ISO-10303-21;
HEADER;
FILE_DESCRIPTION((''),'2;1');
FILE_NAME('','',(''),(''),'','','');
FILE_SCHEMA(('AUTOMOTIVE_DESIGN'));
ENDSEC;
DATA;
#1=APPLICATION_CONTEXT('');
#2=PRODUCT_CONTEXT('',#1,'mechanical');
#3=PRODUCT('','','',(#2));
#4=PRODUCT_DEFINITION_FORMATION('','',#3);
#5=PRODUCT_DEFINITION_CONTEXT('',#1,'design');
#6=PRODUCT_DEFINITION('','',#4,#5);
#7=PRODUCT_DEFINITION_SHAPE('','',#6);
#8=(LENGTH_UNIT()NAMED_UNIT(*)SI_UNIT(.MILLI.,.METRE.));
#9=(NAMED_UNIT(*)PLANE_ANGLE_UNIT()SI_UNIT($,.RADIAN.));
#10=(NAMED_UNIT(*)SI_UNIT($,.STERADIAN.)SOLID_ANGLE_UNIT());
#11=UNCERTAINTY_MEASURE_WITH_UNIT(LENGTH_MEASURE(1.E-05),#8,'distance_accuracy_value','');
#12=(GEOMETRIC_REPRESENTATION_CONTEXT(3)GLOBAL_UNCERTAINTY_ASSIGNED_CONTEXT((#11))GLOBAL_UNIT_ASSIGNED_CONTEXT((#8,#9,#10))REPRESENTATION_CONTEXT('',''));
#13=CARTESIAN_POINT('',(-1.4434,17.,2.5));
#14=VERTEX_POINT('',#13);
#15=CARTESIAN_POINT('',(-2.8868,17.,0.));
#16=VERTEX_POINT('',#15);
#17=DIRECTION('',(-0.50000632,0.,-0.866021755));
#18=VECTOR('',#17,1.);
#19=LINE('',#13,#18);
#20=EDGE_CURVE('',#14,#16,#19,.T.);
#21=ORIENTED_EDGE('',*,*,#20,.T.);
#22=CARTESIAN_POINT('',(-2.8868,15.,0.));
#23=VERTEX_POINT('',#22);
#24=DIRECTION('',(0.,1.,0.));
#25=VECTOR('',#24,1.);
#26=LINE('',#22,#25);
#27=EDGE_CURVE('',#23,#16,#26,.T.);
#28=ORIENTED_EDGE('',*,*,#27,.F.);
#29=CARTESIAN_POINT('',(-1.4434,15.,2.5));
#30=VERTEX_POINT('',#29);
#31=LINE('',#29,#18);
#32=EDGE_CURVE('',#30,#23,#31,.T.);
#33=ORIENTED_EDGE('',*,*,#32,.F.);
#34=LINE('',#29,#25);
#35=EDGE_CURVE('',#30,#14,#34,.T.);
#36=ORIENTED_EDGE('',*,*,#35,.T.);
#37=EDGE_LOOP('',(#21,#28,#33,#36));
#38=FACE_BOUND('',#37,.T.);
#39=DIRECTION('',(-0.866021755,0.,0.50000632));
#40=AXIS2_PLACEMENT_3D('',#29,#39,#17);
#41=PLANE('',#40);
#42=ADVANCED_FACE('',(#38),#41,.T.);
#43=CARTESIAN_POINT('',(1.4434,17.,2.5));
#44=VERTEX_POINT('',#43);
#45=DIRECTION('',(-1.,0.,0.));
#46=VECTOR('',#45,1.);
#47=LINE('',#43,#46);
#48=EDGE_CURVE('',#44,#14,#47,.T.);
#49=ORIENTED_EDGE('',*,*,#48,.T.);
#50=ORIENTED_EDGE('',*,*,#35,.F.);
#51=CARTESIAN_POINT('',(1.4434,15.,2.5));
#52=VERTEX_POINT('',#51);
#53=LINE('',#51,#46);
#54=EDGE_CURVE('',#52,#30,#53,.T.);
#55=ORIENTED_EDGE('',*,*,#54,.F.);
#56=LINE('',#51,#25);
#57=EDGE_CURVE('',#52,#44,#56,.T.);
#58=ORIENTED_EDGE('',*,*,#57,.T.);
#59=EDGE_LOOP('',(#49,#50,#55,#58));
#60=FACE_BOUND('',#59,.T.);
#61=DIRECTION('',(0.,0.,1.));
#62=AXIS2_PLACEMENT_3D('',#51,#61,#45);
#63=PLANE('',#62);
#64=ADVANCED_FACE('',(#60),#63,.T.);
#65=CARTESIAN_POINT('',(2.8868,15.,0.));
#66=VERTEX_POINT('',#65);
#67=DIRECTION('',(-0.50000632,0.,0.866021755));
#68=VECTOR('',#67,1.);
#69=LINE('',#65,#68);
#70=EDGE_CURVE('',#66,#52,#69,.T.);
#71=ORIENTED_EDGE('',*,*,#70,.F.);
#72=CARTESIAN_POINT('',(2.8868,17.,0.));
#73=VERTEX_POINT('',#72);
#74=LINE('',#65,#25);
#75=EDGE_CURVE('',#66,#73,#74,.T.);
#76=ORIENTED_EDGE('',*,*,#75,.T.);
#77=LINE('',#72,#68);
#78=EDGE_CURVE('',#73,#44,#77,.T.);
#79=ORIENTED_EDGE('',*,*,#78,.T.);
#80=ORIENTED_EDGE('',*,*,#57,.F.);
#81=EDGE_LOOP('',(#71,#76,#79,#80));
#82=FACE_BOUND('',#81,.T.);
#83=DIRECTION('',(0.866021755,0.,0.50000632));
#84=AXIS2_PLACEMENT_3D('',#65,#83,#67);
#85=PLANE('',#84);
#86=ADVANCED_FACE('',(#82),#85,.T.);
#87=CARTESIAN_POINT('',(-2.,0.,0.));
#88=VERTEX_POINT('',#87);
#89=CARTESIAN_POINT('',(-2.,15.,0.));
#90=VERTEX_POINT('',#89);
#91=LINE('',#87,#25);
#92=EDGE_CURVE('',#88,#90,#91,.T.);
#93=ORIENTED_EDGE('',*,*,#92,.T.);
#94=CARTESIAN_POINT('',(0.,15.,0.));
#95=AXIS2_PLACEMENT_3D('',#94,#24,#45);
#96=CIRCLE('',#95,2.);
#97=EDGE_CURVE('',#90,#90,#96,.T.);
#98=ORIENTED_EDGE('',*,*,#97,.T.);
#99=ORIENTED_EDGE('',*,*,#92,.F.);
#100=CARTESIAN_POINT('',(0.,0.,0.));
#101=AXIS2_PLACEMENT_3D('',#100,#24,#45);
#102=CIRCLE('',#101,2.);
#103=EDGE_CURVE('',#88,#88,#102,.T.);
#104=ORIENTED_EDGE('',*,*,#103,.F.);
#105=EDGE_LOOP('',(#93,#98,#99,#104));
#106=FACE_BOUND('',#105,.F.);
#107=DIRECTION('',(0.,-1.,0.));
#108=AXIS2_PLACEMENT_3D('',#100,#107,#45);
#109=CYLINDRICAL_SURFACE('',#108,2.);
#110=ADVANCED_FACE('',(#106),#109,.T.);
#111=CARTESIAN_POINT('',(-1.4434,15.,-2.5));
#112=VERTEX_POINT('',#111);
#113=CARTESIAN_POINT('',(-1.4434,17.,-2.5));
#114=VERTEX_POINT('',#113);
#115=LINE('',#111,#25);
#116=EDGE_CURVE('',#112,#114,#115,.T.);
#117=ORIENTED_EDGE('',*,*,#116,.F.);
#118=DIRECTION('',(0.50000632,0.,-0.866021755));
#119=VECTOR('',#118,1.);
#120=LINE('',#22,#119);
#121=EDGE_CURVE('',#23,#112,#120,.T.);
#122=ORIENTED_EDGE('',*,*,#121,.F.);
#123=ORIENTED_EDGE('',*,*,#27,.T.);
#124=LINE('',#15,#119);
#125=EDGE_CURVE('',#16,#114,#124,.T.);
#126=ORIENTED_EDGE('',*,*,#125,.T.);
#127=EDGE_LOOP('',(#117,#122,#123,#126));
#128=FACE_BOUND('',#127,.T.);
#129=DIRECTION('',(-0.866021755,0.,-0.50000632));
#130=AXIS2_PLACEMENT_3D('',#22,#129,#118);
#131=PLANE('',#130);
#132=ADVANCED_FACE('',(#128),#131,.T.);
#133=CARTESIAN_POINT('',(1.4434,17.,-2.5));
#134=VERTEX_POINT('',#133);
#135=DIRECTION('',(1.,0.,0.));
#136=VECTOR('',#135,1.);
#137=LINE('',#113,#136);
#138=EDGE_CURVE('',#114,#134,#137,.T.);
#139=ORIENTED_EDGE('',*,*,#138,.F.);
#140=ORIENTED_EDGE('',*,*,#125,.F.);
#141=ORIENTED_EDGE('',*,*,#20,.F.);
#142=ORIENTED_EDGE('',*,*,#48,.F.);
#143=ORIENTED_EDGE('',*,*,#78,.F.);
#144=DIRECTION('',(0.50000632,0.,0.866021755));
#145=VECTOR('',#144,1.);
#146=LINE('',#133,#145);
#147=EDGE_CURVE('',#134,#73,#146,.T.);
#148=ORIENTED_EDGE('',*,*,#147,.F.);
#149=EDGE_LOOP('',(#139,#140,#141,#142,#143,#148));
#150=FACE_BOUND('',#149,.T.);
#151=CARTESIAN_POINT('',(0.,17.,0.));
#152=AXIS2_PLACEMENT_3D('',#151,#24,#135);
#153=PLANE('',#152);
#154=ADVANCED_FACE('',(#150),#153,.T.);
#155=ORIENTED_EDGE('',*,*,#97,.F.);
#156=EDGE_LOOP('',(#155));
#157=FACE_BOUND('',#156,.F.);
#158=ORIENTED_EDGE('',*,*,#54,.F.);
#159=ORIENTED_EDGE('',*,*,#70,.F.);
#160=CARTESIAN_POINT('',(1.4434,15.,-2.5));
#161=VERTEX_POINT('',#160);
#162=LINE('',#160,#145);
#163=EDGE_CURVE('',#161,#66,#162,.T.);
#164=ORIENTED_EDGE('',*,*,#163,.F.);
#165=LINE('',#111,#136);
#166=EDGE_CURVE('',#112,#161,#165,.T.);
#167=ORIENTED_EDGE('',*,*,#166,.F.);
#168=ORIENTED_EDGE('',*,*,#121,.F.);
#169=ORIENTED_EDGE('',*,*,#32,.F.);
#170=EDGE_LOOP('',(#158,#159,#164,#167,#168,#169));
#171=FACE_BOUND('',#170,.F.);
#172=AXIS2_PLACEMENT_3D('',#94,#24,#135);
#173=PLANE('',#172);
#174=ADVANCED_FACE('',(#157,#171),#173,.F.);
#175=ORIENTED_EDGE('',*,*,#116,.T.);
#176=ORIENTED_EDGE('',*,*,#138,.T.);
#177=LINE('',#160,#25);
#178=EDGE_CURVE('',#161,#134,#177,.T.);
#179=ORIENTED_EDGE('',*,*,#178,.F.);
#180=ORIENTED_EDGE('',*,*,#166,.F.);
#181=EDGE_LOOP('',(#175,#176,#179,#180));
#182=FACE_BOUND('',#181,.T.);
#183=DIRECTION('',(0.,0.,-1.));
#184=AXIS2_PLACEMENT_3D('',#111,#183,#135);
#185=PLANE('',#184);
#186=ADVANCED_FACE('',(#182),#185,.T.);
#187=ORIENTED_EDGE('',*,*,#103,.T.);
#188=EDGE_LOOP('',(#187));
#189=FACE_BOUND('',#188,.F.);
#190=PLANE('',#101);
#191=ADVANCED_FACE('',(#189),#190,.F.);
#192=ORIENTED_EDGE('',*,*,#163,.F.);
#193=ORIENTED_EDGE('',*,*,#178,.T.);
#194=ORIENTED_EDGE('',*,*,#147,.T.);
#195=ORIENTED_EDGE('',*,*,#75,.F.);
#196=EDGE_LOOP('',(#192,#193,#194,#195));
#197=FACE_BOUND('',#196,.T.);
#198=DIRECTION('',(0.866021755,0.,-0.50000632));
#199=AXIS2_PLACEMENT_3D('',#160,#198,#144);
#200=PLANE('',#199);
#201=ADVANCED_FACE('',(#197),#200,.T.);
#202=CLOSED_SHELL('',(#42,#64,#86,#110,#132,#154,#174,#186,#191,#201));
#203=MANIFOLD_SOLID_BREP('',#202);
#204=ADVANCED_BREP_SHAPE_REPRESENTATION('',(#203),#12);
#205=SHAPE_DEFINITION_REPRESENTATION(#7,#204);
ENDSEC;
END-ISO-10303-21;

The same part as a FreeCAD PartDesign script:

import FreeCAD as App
import Part
import Sketcher
from FreeCAD import Vector
Q = App.Units.Quantity

doc = App.newDocument("Part")
params = doc.addObject("Spreadsheet::Sheet", "Params")
for row, (alias, value) in enumerate([
    ("sketch1_diameter", "4 mm"),
    ("pad1_length", "15 mm"),
    ("pad2_length", "2 mm"),
], start=1):
    params.set(f"A{row}", alias)
    params.set(f"B{row}", "=" + value)
    params.setAlias(f"B{row}", alias)

body = doc.addObject("PartDesign::Body", "Body")

# Sketch on XZ plane
sketch1 = body.newObject("Sketcher::SketchObject", "Sketch")
sketch1.AttachmentSupport = (doc.getObject("XZ_Plane"), [""])
sketch1.MapMode = "FlatFace"
sketch1.addGeometry(Part.Circle(Vector(0, 0, 0), Vector(0, 0, 1), 2), False)
sketch1.addConstraint(Sketcher.Constraint("Coincident", 0, 3, -1, 1))
sketch1.addConstraint(Sketcher.Constraint("Diameter", 0, 4.0))
sketch1.setExpression("Constraints[1]", "Params.sketch1_diameter")
pad1 = body.newObject("PartDesign::Pad", "Pad")
pad1.Profile = sketch1
pad1.setExpression("Length", "Params.pad1_length")
pad1.Reversed = True

# Sketch on XZ plane
sketch2 = body.newObject("Sketcher::SketchObject", "Sketch001")
sketch2.AttachmentSupport = (doc.getObject("XZ_Plane"), [""])
sketch2.MapMode = "FlatFace"
sketch2.AttachmentOffset = App.Placement(Vector(0, 0, -15), App.Rotation())
sketch2.addGeometry(Part.LineSegment(Vector(-2.9, 0, 0), Vector(-1.4, 2.5, 0)), False)
sketch2.addGeometry(Part.LineSegment(Vector(-1.4, 2.5, 0), Vector(1.4, 2.5, 0)), False)
sketch2.addGeometry(Part.LineSegment(Vector(1.4, 2.5, 0), Vector(2.9, 0, 0)), False)
sketch2.addGeometry(Part.LineSegment(Vector(2.9, 0, 0), Vector(1.4, -2.5, 0)), False)
sketch2.addGeometry(Part.LineSegment(Vector(1.4, -2.5, 0), Vector(-1.4, -2.5, 0)), False)
sketch2.addGeometry(Part.LineSegment(Vector(-1.4, -2.5, 0), Vector(-2.9, 0, 0)), False)
sketch2.addConstraint(Sketcher.Constraint("Coincident", 0, 2, 1, 1))
sketch2.addConstraint(Sketcher.Constraint("Coincident", 1, 2, 2, 1))
sketch2.addConstraint(Sketcher.Constraint("Coincident", 2, 2, 3, 1))
sketch2.addConstraint(Sketcher.Constraint("Coincident", 3, 2, 4, 1))
sketch2.addConstraint(Sketcher.Constraint("Coincident", 4, 2, 5, 1))
sketch2.addConstraint(Sketcher.Constraint("Coincident", 5, 2, 0, 1))
sketch2.addConstraint(Sketcher.Constraint("Horizontal", 1))
sketch2.addConstraint(Sketcher.Constraint("Horizontal", 4))
sketch2.addConstraint(Sketcher.Constraint("Symmetric", 0, 2, 3, 2, -1, 1))
sketch2.addConstraint(Sketcher.Constraint("Symmetric", 2, 2, 5, 2, -1, 1))
sketch2.addConstraint(Sketcher.Constraint("PointOnObject", 2, 2, -1))
sketch2.addConstraint(Sketcher.Constraint("Parallel", 2, 5))
sketch2.addConstraint(Sketcher.Constraint("Vertical", 1, 2, 3, 2))
sketch2.addConstraint(Sketcher.Constraint("DistanceY", 3, 2, 1, 2, 5.0))
sketch2.addConstraint(Sketcher.Constraint("Angle", 0, Q("59.9996 deg")))
sketch2.addConstraint(Sketcher.Constraint("DistanceX", 1, 1, 1, 2, 2.8868))
pad2 = body.newObject("PartDesign::Pad", "Pad001")
pad2.Profile = sketch2
pad2.setExpression("Length", "Params.pad2_length")
pad2.Reversed = True

doc.recompute()
